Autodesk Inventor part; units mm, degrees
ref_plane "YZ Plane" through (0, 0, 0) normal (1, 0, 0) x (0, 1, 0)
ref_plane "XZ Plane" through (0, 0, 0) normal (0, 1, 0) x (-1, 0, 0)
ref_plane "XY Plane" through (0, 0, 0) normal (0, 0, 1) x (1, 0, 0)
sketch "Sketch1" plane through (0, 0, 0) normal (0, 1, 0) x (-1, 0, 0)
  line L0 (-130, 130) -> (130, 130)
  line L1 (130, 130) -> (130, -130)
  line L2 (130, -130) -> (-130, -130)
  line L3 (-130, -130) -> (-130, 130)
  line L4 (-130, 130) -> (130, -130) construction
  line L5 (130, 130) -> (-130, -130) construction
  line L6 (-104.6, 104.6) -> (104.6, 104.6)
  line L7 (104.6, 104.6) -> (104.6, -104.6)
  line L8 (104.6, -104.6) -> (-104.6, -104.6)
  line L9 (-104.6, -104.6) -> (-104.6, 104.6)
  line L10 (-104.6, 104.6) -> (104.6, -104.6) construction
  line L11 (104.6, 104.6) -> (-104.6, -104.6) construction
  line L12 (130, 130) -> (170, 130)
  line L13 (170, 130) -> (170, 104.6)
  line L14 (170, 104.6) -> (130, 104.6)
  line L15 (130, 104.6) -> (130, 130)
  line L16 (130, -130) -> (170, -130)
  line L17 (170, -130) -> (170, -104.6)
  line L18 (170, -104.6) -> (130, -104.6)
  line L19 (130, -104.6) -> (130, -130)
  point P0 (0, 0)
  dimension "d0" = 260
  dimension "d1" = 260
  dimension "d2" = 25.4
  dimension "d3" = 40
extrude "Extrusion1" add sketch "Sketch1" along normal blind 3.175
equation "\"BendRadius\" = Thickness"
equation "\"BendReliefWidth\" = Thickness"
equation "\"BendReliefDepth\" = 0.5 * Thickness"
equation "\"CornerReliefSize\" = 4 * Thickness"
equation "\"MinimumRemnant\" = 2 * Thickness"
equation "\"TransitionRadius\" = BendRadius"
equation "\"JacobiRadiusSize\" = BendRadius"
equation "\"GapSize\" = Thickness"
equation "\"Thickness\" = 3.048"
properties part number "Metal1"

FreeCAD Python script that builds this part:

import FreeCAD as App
import Part
import Sketcher

V = App.Vector


def add_polygon(sketch, points):
    """Adds a closed chain of lines whose ends are joined by coincident constraints."""
    first, n = sketch.GeometryCount, len(points)
    for a, b in zip(points, points[1:] + points[:1]):
        sketch.addGeometry(Part.LineSegment(App.Vector(*a, 0), App.Vector(*b, 0)), False)
    for i in range(n):
        sketch.addConstraint(Sketcher.Constraint("Coincident", first + i, 2, first + (i + 1) % n, 1))

doc = App.newDocument("Part")
body = doc.addObject("PartDesign::Body", "Body")

# Sketch on XZ plane
sketch1 = body.newObject("Sketcher::SketchObject", "Sketch")
sketch1.AttachmentSupport = (doc.getObject("XZ_Plane"), [""])
sketch1.MapMode = "FlatFace"
add_polygon(sketch1, [(130, 130), (130, -130), (-170, -130), (-170, -105), (-130, -105), (-130, 105), (-170, 105), (-170, 130)])  # lines 0-7
add_polygon(sketch1, [(105, -105), (105, 105), (-105, 105), (-105, -105)])  # lines 8-11
sketch1.addConstraint([
    Sketcher.Constraint("Vertical", 0),
    Sketcher.Constraint("Horizontal", 1),
    Sketcher.Constraint("Vertical", 2),
    Sketcher.Constraint("Horizontal", 3),
    Sketcher.Constraint("Vertical", 4),
    Sketcher.Constraint("Horizontal", 5),
    Sketcher.Constraint("Vertical", 6),
    Sketcher.Constraint("Horizontal", 7),
    Sketcher.Constraint("Vertical", 8),
    Sketcher.Constraint("Horizontal", 9),
    Sketcher.Constraint("Vertical", 10),
    Sketcher.Constraint("Horizontal", 11),
    Sketcher.Constraint("Symmetric", 8, 2, 10, 2, -1, 1),
    Sketcher.Constraint("Symmetric", 2, 2, 5, 2, -1),
    Sketcher.Constraint("Horizontal", 5, 2, 8, 2),
    Sketcher.Constraint("Equal", 11, 4),
    Sketcher.Constraint("Equal", 2, 6),
    Sketcher.Constraint("DistanceX", 3, 1, 3, 2, 40.0),
    Sketcher.Constraint("DistanceY", 0, 2, 0, 1, 260.0),
    Sketcher.Constraint("DistanceY", 2, 1, 2, 2, 25.4),
    Sketcher.Constraint("DistanceX", 3, 2, 0, 2, 260.0),
    Sketcher.Constraint("DistanceX", 8, 2, 7, 2, 25.4),
])
pad1 = body.newObject("PartDesign::Pad", "Pad")
pad1.Profile = sketch1
pad1.Length = 3.175
pad1.Reversed = True

doc.recompute()
